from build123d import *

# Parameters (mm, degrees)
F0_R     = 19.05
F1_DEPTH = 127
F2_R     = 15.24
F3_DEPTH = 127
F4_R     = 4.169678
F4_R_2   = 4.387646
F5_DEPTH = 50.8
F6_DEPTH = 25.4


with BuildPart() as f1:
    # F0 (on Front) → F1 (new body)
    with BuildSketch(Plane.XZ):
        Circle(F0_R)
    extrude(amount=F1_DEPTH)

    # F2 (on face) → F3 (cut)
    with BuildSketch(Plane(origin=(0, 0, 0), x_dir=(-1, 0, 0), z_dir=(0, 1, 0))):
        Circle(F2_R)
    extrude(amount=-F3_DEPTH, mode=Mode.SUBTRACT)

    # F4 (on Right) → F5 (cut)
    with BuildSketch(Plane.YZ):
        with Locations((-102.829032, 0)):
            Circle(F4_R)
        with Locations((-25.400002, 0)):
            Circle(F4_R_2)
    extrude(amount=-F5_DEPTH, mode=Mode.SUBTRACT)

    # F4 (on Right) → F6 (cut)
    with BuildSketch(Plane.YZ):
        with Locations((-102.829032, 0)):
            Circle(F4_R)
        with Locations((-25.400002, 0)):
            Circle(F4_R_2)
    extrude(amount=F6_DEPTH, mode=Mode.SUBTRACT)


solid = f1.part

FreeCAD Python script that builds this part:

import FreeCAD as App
import Part
import Sketcher

V = App.Vector
Q = App.Units.Quantity

doc = App.newDocument("Part")
params = doc.addObject("Spreadsheet::Sheet", "Params")
for row, (alias, value) in enumerate([
    ("sketch1_diameter", "1.5 in"),
    ("pad1_length", "5 in"),
    ("sketch2_diameter", "1.2 in"),
    ("pocket1_length", "5 in"),
    ("pocket2_length", "2 in"),
    ("pocket3_length", "1 in"),
], start=1):
    params.set(f"A{row}", alias)
    params.set(f"B{row}", "=" + value)
    params.setAlias(f"B{row}", alias)

body = doc.addObject("PartDesign::Body", "Body")

# Sketch on XZ plane
sketch1 = body.newObject("Sketcher::SketchObject", "Sketch")
sketch1.AttachmentSupport = (doc.getObject("XZ_Plane"), [""])
sketch1.MapMode = "FlatFace"
sketch1.addGeometry(Part.Circle(V(0, 0, 0), V(0, 0, 1), 19.05), False)
sketch1.addConstraint([
    Sketcher.Constraint("Coincident", 0, 3, -1, 1),
    Sketcher.Constraint("Diameter", 0, Q("1.5 in")),
])
sketch1.setExpression("Constraints[1]", "Params.sketch1_diameter")
pad1 = body.newObject("PartDesign::Pad", "Pad")
pad1.Profile = sketch1
pad1.setExpression("Length", "Params.pad1_length")

# Sketch on XZ plane
sketch2 = body.newObject("Sketcher::SketchObject", "Sketch001")
sketch2.AttachmentSupport = (doc.getObject("XZ_Plane"), [""])
sketch2.MapMode = "FlatFace"
sketch2.addGeometry(Part.Circle(V(0, 0, 0), V(0, 0, 1), 15.24), False)
sketch2.addConstraint([
    Sketcher.Constraint("Coincident", 0, 3, -1, 1),
    Sketcher.Constraint("Diameter", 0, Q("1.2 in")),
])
sketch2.setExpression("Constraints[1]", "Params.sketch2_diameter")
pocket1 = body.newObject("PartDesign::Pocket", "Pocket")
pocket1.Profile = sketch2
pocket1.setExpression("Length", "Params.pocket1_length")
pocket1.Reversed = True

# Sketch on YZ plane
sketch3 = body.newObject("Sketcher::SketchObject", "Sketch002")
sketch3.AttachmentSupport = (doc.getObject("YZ_Plane"), [""])
sketch3.MapMode = "FlatFace"
sketch3.addGeometry([
    Part.Circle(V(-102.829032, 0, 0), V(0, 0, 1), 4.169678),
    Part.Circle(V(-25.400002, 0, 0), V(0, 0, 1), 4.387646),
], False)
sketch3.addConstraint([
    Sketcher.Constraint("PointOnObject", 0, 3, -1),
    Sketcher.Constraint("PointOnObject", 1, 3, -1),
    Sketcher.Constraint("DistanceX", 1, 3, -1, 1, Q("1.0000001 in")),
    Sketcher.Constraint("Diameter", 0, Q("8.339356 mm")),
    Sketcher.Constraint("Diameter", 1, Q("8.775292 mm")),
    Sketcher.Constraint("DistanceX", 0, 3, -1, 1, Q("102.829032 mm")),
])
pocket2 = body.newObject("PartDesign::Pocket", "Pocket001")
pocket2.Profile = sketch3
pocket2.setExpression("Length", "Params.pocket2_length")

# Sketch on YZ plane
sketch4 = body.newObject("Sketcher::SketchObject", "Sketch003")
sketch4.AttachmentSupport = (doc.getObject("YZ_Plane"), [""])
sketch4.MapMode = "FlatFace"
sketch4.addGeometry([
    Part.Circle(V(-102.829032, 0, 0), V(0, 0, 1), 4.169678),
    Part.Circle(V(-25.400002, 0, 0), V(0, 0, 1), 4.387646),
], False)
sketch4.addConstraint([
    Sketcher.Constraint("PointOnObject", 0, 3, -1),
    Sketcher.Constraint("PointOnObject", 1, 3, -1),
    Sketcher.Constraint("DistanceX", 1, 3, -1, 1, Q("1.0000001 in")),
    Sketcher.Constraint("Diameter", 0, Q("8.339356 mm")),
    Sketcher.Constraint("Diameter", 1, Q("8.775292 mm")),
    Sketcher.Constraint("DistanceX", 0, 3, -1, 1, Q("102.829032 mm")),
])
pocket3 = body.newObject("PartDesign::Pocket", "Pocket002")
pocket3.Profile = sketch4
pocket3.setExpression("Length", "Params.pocket3_length")
pocket3.Reversed = True

doc.recompute()
